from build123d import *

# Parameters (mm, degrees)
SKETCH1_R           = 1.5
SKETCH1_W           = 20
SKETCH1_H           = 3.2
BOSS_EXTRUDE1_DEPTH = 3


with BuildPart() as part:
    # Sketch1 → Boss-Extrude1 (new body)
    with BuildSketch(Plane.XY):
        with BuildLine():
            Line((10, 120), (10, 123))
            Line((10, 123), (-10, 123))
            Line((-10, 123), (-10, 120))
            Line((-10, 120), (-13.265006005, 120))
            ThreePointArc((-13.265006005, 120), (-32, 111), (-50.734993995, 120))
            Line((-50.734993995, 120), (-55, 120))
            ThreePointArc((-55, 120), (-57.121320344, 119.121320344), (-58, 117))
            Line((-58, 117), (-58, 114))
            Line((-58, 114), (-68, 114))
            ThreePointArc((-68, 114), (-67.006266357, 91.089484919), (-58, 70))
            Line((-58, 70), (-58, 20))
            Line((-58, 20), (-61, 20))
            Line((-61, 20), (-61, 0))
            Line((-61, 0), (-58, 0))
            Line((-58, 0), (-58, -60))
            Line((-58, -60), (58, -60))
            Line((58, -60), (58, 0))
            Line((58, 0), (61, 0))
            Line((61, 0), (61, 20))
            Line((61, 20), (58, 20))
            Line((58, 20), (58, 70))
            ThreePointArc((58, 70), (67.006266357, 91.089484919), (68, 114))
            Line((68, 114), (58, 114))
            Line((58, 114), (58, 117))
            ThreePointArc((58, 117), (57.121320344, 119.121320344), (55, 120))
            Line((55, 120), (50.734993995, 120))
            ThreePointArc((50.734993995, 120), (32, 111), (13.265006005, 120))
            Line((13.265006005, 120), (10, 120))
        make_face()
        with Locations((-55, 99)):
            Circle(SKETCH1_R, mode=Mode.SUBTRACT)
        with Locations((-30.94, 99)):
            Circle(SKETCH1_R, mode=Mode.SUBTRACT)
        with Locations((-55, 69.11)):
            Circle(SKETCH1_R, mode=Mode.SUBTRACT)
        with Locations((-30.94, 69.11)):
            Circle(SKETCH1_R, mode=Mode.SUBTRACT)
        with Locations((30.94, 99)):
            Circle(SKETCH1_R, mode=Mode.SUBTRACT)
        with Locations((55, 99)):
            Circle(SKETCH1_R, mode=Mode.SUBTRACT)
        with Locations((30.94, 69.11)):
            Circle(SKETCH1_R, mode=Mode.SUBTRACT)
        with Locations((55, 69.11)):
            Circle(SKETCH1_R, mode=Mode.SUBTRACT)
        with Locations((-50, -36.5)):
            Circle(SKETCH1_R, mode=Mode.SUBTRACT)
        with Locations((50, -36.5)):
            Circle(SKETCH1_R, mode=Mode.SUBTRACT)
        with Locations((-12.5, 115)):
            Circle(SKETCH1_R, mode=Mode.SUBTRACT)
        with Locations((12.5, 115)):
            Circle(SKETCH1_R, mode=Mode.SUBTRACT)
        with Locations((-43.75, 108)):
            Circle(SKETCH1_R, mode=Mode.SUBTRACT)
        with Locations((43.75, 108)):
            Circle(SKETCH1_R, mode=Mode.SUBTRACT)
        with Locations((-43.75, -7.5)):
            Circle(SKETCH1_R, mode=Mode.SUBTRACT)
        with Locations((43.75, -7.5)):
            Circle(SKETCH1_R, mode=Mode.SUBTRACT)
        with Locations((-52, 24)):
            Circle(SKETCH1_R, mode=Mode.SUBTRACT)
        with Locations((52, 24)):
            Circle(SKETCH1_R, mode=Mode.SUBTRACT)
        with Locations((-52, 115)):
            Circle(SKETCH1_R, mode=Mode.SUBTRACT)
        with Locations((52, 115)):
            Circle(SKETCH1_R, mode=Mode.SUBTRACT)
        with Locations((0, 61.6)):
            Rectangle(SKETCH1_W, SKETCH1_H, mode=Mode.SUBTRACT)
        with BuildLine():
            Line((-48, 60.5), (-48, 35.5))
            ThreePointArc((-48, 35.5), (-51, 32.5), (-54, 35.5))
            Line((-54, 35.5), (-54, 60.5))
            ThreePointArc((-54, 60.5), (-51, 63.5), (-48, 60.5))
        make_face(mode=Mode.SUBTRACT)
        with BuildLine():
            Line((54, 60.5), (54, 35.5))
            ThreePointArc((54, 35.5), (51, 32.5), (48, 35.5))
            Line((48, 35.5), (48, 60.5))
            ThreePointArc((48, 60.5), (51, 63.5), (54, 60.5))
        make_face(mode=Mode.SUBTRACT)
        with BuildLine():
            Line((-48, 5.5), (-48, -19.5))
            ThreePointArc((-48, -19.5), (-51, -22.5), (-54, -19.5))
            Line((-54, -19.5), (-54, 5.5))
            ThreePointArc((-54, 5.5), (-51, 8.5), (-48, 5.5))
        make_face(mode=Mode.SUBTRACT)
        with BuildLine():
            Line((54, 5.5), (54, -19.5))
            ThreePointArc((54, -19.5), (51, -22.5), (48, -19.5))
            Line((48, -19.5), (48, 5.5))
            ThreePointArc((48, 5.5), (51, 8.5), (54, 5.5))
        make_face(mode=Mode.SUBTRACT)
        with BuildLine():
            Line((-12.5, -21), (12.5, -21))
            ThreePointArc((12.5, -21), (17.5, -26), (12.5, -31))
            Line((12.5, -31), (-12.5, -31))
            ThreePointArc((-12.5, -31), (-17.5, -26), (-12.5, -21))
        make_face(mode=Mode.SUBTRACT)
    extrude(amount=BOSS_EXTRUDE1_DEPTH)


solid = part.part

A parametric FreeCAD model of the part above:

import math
import FreeCAD as App
import Part
import Sketcher
from FreeCAD import Vector
Q = App.Units.Quantity


def add_polygon(sketch, points):
    """Adds a closed chain of lines whose ends are joined by coincident constraints."""
    first, n = sketch.GeometryCount, len(points)
    for a, b in zip(points, points[1:] + points[:1]):
        sketch.addGeometry(Part.LineSegment(App.Vector(*a, 0), App.Vector(*b, 0)), False)
    for i in range(n):
        sketch.addConstraint(Sketcher.Constraint("Coincident", first + i, 2, first + (i + 1) % n, 1))

doc = App.newDocument("Part")
params = doc.addObject("Spreadsheet::Sheet", "Params")
for row, (alias, value) in enumerate([
    ("sketch1_diameter", "3 mm"),
    ("sketch1_radius", "24 mm"),
    ("sketch1_radius2", "3 mm"),
    ("sketch1_radius3", "64 mm"),
    ("sketch1_radius4", "5 mm"),
    ("pad1_length", "3 mm"),
], start=1):
    params.set(f"A{row}", alias)
    params.set(f"B{row}", "=" + value)
    params.setAlias(f"B{row}", alias)

body = doc.addObject("PartDesign::Body", "Body")

# Sketch on XY plane
sketch1 = doc.addObject("Sketcher::SketchObject", "Sketch")
body.addObject(sketch1)
sketch1.AttachmentSupport = (doc.XY_Plane, [""])
sketch1.MapMode = "FlatFace"
sketch1.addGeometry(Part.LineSegment(Vector(10, 120, 0), Vector(10, 123, 0)), False)  # 0
sketch1.addGeometry(Part.LineSegment(Vector(10, 123, 0), Vector(-10, 123, 0)), False)  # 1
sketch1.addGeometry(Part.LineSegment(Vector(-10, 123, 0), Vector(-10, 120, 0)), False)  # 2
sketch1.addGeometry(Part.LineSegment(Vector(-10, 120, 0), Vector(-13.3, 120, 0)), False)  # 3
sketch1.addGeometry(Part.ArcOfCircle(Part.Circle(Vector(-32, 135, 0), Vector(0, 0, 1), 24), math.radians(-141), math.radians(-39)), False)  # 4
sketch1.addGeometry(Part.LineSegment(Vector(-50.7, 120, 0), Vector(-55, 120, 0)), False)  # 5
sketch1.addGeometry(Part.ArcOfCircle(Part.Circle(Vector(-55, 117, 0), Vector(0, 0, 1), 3), math.radians(90), math.radians(180)), False)  # 6
sketch1.addGeometry(Part.LineSegment(Vector(-58, 117, 0), Vector(-58, 114, 0)), False)  # 7
sketch1.addGeometry(Part.LineSegment(Vector(-58, 114, 0), Vector(-68, 114, 0)), False)  # 8
sketch1.addGeometry(Part.ArcOfCircle(Part.Circle(Vector(-4.6, 105.3, 0), Vector(0, 0, 1), 64), math.radians(172), math.radians(213)), False)  # 9
sketch1.addGeometry(Part.LineSegment(Vector(-58, 70, 0), Vector(-58, 20, 0)), False)  # 10
sketch1.addGeometry(Part.LineSegment(Vector(-58, 20, 0), Vector(-61, 20, 0)), False)  # 11
sketch1.addGeometry(Part.LineSegment(Vector(-61, 20, 0), Vector(-61, 0, 0)), False)  # 12
sketch1.addGeometry(Part.LineSegment(Vector(-61, 0, 0), Vector(-58, 0, 0)), False)  # 13
sketch1.addGeometry(Part.LineSegment(Vector(-58, 0, 0), Vector(-58, -60, 0)), False)  # 14
sketch1.addGeometry(Part.LineSegment(Vector(-58, -60, 0), Vector(58, -60, 0)), False)  # 15
sketch1.addGeometry(Part.LineSegment(Vector(58, -60, 0), Vector(58, 0, 0)), False)  # 16
sketch1.addGeometry(Part.LineSegment(Vector(58, 0, 0), Vector(61, 0, 0)), False)  # 17
sketch1.addGeometry(Part.LineSegment(Vector(61, 0, 0), Vector(61, 20, 0)), False)  # 18
sketch1.addGeometry(Part.LineSegment(Vector(61, 20, 0), Vector(58, 20, 0)), False)  # 19
sketch1.addGeometry(Part.LineSegment(Vector(58, 20, 0), Vector(58, 70, 0)), False)  # 20
sketch1.addGeometry(Part.ArcOfCircle(Part.Circle(Vector(4.6, 105.3, 0), Vector(0, 0, 1), 64), math.radians(-33), math.radians(8)), False)  # 21
sketch1.addGeometry(Part.LineSegment(Vector(68, 114, 0), Vector(58, 114, 0)), False)  # 22
sketch1.addGeometry(Part.LineSegment(Vector(58, 114, 0), Vector(58, 117, 0)), False)  # 23
sketch1.addGeometry(Part.ArcOfCircle(Part.Circle(Vector(55, 117, 0), Vector(0, 0, 1), 3), math.radians(0), math.radians(90)), False)  # 24
sketch1.addGeometry(Part.LineSegment(Vector(55, 120, 0), Vector(50.7, 120, 0)), False)  # 25
sketch1.addGeometry(Part.ArcOfCircle(Part.Circle(Vector(32, 135, 0), Vector(0, 0, 1), 24), math.radians(-141), math.radians(-39)), False)  # 26
sketch1.addGeometry(Part.LineSegment(Vector(13.3, 120, 0), Vector(10, 120, 0)), False)  # 27
sketch1.addGeometry(Part.Circle(Vector(-50, -36.5, 0), Vector(0, 0, 1), 1.5), False)  # 28
sketch1.addGeometry(Part.ArcOfCircle(Part.Circle(Vector(-51, 5.5, 0), Vector(0, 0, 1), 3), math.radians(0), math.radians(180)), False)  # 29
sketch1.addGeometry(Part.LineSegment(Vector(-48, 5.5, 0), Vector(-48, -19.5, 0)), False)  # 30
sketch1.addGeometry(Part.ArcOfCircle(Part.Circle(Vector(-51, -19.5, 0), Vector(0, 0, 1), 3), math.radians(180), math.radians(360)), False)  # 31
sketch1.addGeometry(Part.LineSegment(Vector(-54, -19.5, 0), Vector(-54, 5.5, 0)), False)  # 32
sketch1.addGeometry(Part.Circle(Vector(-43.8, -7.5, 0), Vector(0, 0, 1), 1.5), False)  # 33
sketch1.addGeometry(Part.Circle(Vector(-52, 24, 0), Vector(0, 0, 1), 1.5), False)  # 34
sketch1.addGeometry(Part.ArcOfCircle(Part.Circle(Vector(-12.5, -26, 0), Vector(0, 0, 1), 5), math.radians(90), math.radians(270)), False)  # 35
sketch1.addGeometry(Part.LineSegment(Vector(-12.5, -21, 0), Vector(12.5, -21, 0)), False)  # 36
sketch1.addGeometry(Part.ArcOfCircle(Part.Circle(Vector(12.5, -26, 0), Vector(0, 0, 1), 5), math.radians(-90), math.radians(90)), False)  # 37
sketch1.addGeometry(Part.LineSegment(Vector(12.5, -31, 0), Vector(-12.5, -31, 0)), False)  # 38
sketch1.addGeometry(Part.Circle(Vector(50, -36.5, 0), Vector(0, 0, 1), 1.5), False)  # 39
sketch1.addGeometry(Part.Circle(Vector(43.8, -7.5, 0), Vector(0, 0, 1), 1.5), False)  # 40
sketch1.addGeometry(Part.ArcOfCircle(Part.Circle(Vector(51, 5.5, 0), Vector(0, 0, 1), 3), math.radians(0), math.radians(180)), False)  # 41
sketch1.addGeometry(Part.LineSegment(Vector(54, 5.5, 0), Vector(54, -19.5, 0)), False)  # 42
sketch1.addGeometry(Part.ArcOfCircle(Part.Circle(Vector(51, -19.5, 0), Vector(0, 0, 1), 3), math.radians(180), math.radians(360)), False)  # 43
sketch1.addGeometry(Part.LineSegment(Vector(48, -19.5, 0), Vector(48, 5.5, 0)), False)  # 44
sketch1.addGeometry(Part.Circle(Vector(52, 24, 0), Vector(0, 0, 1), 1.5), False)  # 45
sketch1.addGeometry(Part.ArcOfCircle(Part.Circle(Vector(-51, 60.5, 0), Vector(0, 0, 1), 3), math.radians(0), math.radians(180)), False)  # 46
sketch1.addGeometry(Part.LineSegment(Vector(-48, 60.5, 0), Vector(-48, 35.5, 0)), False)  # 47
sketch1.addGeometry(Part.ArcOfCircle(Part.Circle(Vector(-51, 35.5, 0), Vector(0, 0, 1), 3), math.radians(180), math.radians(360)), False)  # 48
sketch1.addGeometry(Part.LineSegment(Vector(-54, 35.5, 0), Vector(-54, 60.5, 0)), False)  # 49
sketch1.addGeometry(Part.Circle(Vector(-55, 69.1, 0), Vector(0, 0, 1), 1.5), False)  # 50
sketch1.addGeometry(Part.Circle(Vector(-30.9, 69.1, 0), Vector(0, 0, 1), 1.5), False)  # 51
sketch1.addGeometry(Part.Circle(Vector(-55, 99, 0), Vector(0, 0, 1), 1.5), False)  # 52
sketch1.addGeometry(Part.Circle(Vector(-52, 115, 0), Vector(0, 0, 1), 1.5), False)  # 53
sketch1.addGeometry(Part.Circle(Vector(-43.8, 108, 0), Vector(0, 0, 1), 1.5), False)  # 54
sketch1.addGeometry(Part.Circle(Vector(-30.9, 99, 0), Vector(0, 0, 1), 1.5), False)  # 55
sketch1.addGeometry(Part.Circle(Vector(-12.5, 115, 0), Vector(0, 0, 1), 1.5), False)  # 56
add_polygon(sketch1, [(10, 60), (-10, 60), (-10, 63.2), (10, 63.2)])  # lines 57-60
sketch1.addGeometry(Part.ArcOfCircle(Part.Circle(Vector(51, 60.5, 0), Vector(0, 0, 1), 3), math.radians(0), math.radians(180)), False)  # 61
sketch1.addGeometry(Part.LineSegment(Vector(54, 60.5, 0), Vector(54, 35.5, 0)), False)  # 62
sketch1.addGeometry(Part.ArcOfCircle(Part.Circle(Vector(51, 35.5, 0), Vector(0, 0, 1), 3), math.radians(180), math.radians(360)), False)  # 63
sketch1.addGeometry(Part.LineSegment(Vector(48, 35.5, 0), Vector(48, 60.5, 0)), False)  # 64
sketch1.addGeometry(Part.Circle(Vector(30.9, 69.1, 0), Vector(0, 0, 1), 1.5), False)  # 65
sketch1.addGeometry(Part.Circle(Vector(55, 69.1, 0), Vector(0, 0, 1), 1.5), False)  # 66
sketch1.addGeometry(Part.Circle(Vector(12.5, 115, 0), Vector(0, 0, 1), 1.5), False)  # 67
sketch1.addGeometry(Part.Circle(Vector(30.9, 99, 0), Vector(0, 0, 1), 1.5), False)  # 68
sketch1.addGeometry(Part.Circle(Vector(55, 99, 0), Vector(0, 0, 1), 1.5), False)  # 69
sketch1.addGeometry(Part.Circle(Vector(43.8, 108, 0), Vector(0, 0, 1), 1.5), False)  # 70
sketch1.addGeometry(Part.Circle(Vector(52, 115, 0), Vector(0, 0, 1), 1.5), False)  # 71
sketch1.addConstraint([
    Sketcher.Constraint("Coincident", 0, 2, 1, 1),
    Sketcher.Constraint("Coincident", 1, 2, 2, 1),
    Sketcher.Constraint("Coincident", 2, 2, 3, 1),
    Sketcher.Constraint("Coincident", 3, 2, 4, 2),
    Sketcher.Constraint("Coincident", 4, 1, 5, 1),
    Sketcher.Constraint("Tangent", 5, 2, 6, 1),
    Sketcher.Constraint("Tangent", 6, 2, 7, 1),
    Sketcher.Constraint("Coincident", 7, 2, 8, 1),
    Sketcher.Constraint("Coincident", 8, 2, 9, 1),
    Sketcher.Constraint("Coincident", 9, 2, 10, 1),
    Sketcher.Constraint("Coincident", 10, 2, 11, 1),
    Sketcher.Constraint("Coincident", 11, 2, 12, 1),
    Sketcher.Constraint("Coincident", 12, 2, 13, 1),
    Sketcher.Constraint("Coincident", 13, 2, 14, 1),
    Sketcher.Constraint("Coincident", 14, 2, 15, 1),
    Sketcher.Constraint("Coincident", 15, 2, 16, 1),
    Sketcher.Constraint("Coincident", 16, 2, 17, 1),
    Sketcher.Constraint("Coincident", 17, 2, 18, 1),
    Sketcher.Constraint("Coincident", 18, 2, 19, 1),
    Sketcher.Constraint("Coincident", 19, 2, 20, 1),
    Sketcher.Constraint("Coincident", 20, 2, 21, 1),
    Sketcher.Constraint("Coincident", 21, 2, 22, 1),
    Sketcher.Constraint("Coincident", 22, 2, 23, 1),
    Sketcher.Constraint("Tangent", 23, 2, 24, 1),
    Sketcher.Constraint("Tangent", 24, 2, 25, 1),
    Sketcher.Constraint("Coincident", 25, 2, 26, 2),
    Sketcher.Constraint("Coincident", 26, 1, 27, 1),
    Sketcher.Constraint("Coincident", 27, 2, 0, 1),
    Sketcher.Constraint("Tangent", 29, 1, 30, 1),
    Sketcher.Constraint("Tangent", 30, 2, 31, 2),
    Sketcher.Constraint("Tangent", 31, 1, 32, 1),
    Sketcher.Constraint("Tangent", 32, 2, 29, 2),
    Sketcher.Constraint("Tangent", 35, 1, 36, 1),
    Sketcher.Constraint("Tangent", 36, 2, 37, 2),
    Sketcher.Constraint("Tangent", 37, 1, 38, 1),
    Sketcher.Constraint("Tangent", 38, 2, 35, 2),
    Sketcher.Constraint("Tangent", 41, 1, 42, 1),
    Sketcher.Constraint("Tangent", 42, 2, 43, 2),
    Sketcher.Constraint("Tangent", 43, 1, 44, 1),
    Sketcher.Constraint("Tangent", 44, 2, 41, 2),
    Sketcher.Constraint("Tangent", 46, 1, 47, 1),
    Sketcher.Constraint("Tangent", 47, 2, 48, 2),
    Sketcher.Constraint("Tangent", 48, 1, 49, 1),
    Sketcher.Constraint("Tangent", 49, 2, 46, 2),
    Sketcher.Constraint("Tangent", 61, 1, 62, 1),
    Sketcher.Constraint("Tangent", 62, 2, 63, 2),
    Sketcher.Constraint("Tangent", 63, 1, 64, 1),
    Sketcher.Constraint("Tangent", 64, 2, 61, 2),
    Sketcher.Constraint("Vertical", 0),
    Sketcher.Constraint("Horizontal", 1),
    Sketcher.Constraint("Vertical", 2),
    Sketcher.Constraint("Horizontal", 3),
    Sketcher.Constraint("Horizontal", 5),
    Sketcher.Constraint("Vertical", 7),
    Sketcher.Constraint("Horizontal", 8),
    Sketcher.Constraint("Vertical", 10),
    Sketcher.Constraint("Horizontal", 11),
    Sketcher.Constraint("Vertical", 12),
    Sketcher.Constraint("Horizontal", 13),
    Sketcher.Constraint("Vertical", 14),
    Sketcher.Constraint("Horizontal", 15),
    Sketcher.Constraint("Vertical", 16),
    Sketcher.Constraint("Horizontal", 17),
    Sketcher.Constraint("Vertical", 18),
    Sketcher.Constraint("Horizontal", 19),
    Sketcher.Constraint("Vertical", 20),
    Sketcher.Constraint("Horizontal", 22),
    Sketcher.Constraint("Vertical", 23),
    Sketcher.Constraint("Horizontal", 25),
    Sketcher.Constraint("Horizontal", 27),
    Sketcher.Constraint("Vertical", 30),
    Sketcher.Constraint("Vertical", 32),
    Sketcher.Constraint("Horizontal", 36),
    Sketcher.Constraint("Horizontal", 38),
    Sketcher.Constraint("Vertical", 42),
    Sketcher.Constraint("Vertical", 44),
    Sketcher.Constraint("Vertical", 47),
    Sketcher.Constraint("Vertical", 49),
    Sketcher.Constraint("Horizontal", 57),
    Sketcher.Constraint("Vertical", 58),
    Sketcher.Constraint("Horizontal", 59),
    Sketcher.Constraint("Vertical", 60),
    Sketcher.Constraint("Vertical", 62),
    Sketcher.Constraint("Vertical", 64),
    Sketcher.Constraint("Equal", 9, 21),
    Sketcher.Constraint("Equal", 6, 24),
    Sketcher.Constraint("Equal", 4, 26),
    Sketcher.Constraint("Equal", 24, 29),
    Sketcher.Constraint("Equal", 28, 33),
    Sketcher.Constraint("Equal", 33, 34),
    Sketcher.Constraint("Equal", 34, 39),
    Sketcher.Constraint("Equal", 39, 40),
    Sketcher.Constraint("Equal", 31, 41),
    Sketcher.Constraint("Equal", 40, 45),
    Sketcher.Constraint("Equal", 43, 46),
    Sketcher.Constraint("Equal", 45, 50),
    Sketcher.Constraint("Equal", 50, 51),
    Sketcher.Constraint("Equal", 51, 52),
    Sketcher.Constraint("Equal", 52, 53),
    Sketcher.Constraint("Equal", 53, 54),
    Sketcher.Constraint("Equal", 54, 55),
    Sketcher.Constraint("Equal", 55, 56),
    Sketcher.Constraint("Equal", 48, 61),
    Sketcher.Constraint("Equal", 56, 65),
    Sketcher.Constraint("Equal", 65, 66),
    Sketcher.Constraint("Equal", 66, 67),
    Sketcher.Constraint("Equal", 67, 68),
    Sketcher.Constraint("Equal", 68, 69),
    Sketcher.Constraint("Equal", 69, 70),
    Sketcher.Constraint("Equal", 70, 71),
    Sketcher.Constraint("Symmetric", 13, 2, 16, 2, -1, 1),
    Sketcher.Constraint("Symmetric", 9, 3, 21, 3, -2),
    Sketcher.Constraint("Symmetric", 6, 3, 24, 3, -2),
    Sketcher.Constraint("Symmetric", 4, 3, 26, 3, -2),
    Sketcher.Constraint("Symmetric", 28, 3, 39, 3, -2),
    Sketcher.Constraint("Symmetric", 33, 3, 40, 3, -2),
    Sketcher.Constraint("Symmetric", 29, 3, 41, 3, -2),
    Sketcher.Constraint("Symmetric", 34, 3, 45, 3, -2),
    Sketcher.Constraint("Symmetric", 46, 3, 61, 3, -2),
    Sketcher.Constraint("Symmetric", 51, 3, 65, 3, -2),
    Sketcher.Constraint("Symmetric", 50, 3, 66, 3, -2),
    Sketcher.Constraint("Symmetric", 56, 3, 67, 3, -2),
    Sketcher.Constraint("Symmetric", 55, 3, 68, 3, -2),
    Sketcher.Constraint("Symmetric", 52, 3, 69, 3, -2),
    Sketcher.Constraint("Symmetric", 54, 3, 70, 3, -2),
    Sketcher.Constraint("Symmetric", 53, 3, 71, 3, -2),
    Sketcher.Constraint("Symmetric", 12, 2, 17, 2, -2),
    Sketcher.Constraint("Symmetric", 10, 2, 19, 2, -2),
    Sketcher.Constraint("Symmetric", 2, 2, 27, 2, -2),
    Sketcher.Constraint("Horizontal", 31, 3, 43, 3),
    Sketcher.Constraint("Horizontal", 50, 3, 51, 3),
    Sketcher.Constraint("Horizontal", 52, 3, 55, 3),
    Sketcher.Constraint("Horizontal", 53, 3, 56, 3),
    Sketcher.Constraint("Horizontal", 48, 3, 63, 3),
    Sketcher.Constraint("Horizontal", 3, 2, 4, 1),
    Sketcher.Constraint("Horizontal", 8, 2, 21, 2),
    Sketcher.Constraint("Vertical", 31, 3, 46, 3),
    Sketcher.Constraint("Vertical", 6, 3, 50, 3),
    Sketcher.Constraint("Vertical", 50, 3, 52, 3),
    Sketcher.Constraint("Vertical", 34, 3, 53, 3),
    Sketcher.Constraint("Vertical", 33, 3, 54, 3),
    Sketcher.Constraint("Vertical", 51, 3, 55, 3),
    Sketcher.Constraint("Vertical", 35, 3, 56, 3),
    Sketcher.Constraint("Vertical", 37, 3, 67, 3),
    Sketcher.Constraint("Vertical", 7, 2, 9, 2),
    Sketcher.Constraint("Vertical", 10, 2, 13, 2),
    Sketcher.Constraint("Vertical", 2, 2, 57, 2),
    Sketcher.Constraint("Vertical", 27, 2, 59, 2),
    Sketcher.Constraint("Equal", 19, 0),
    Sketcher.Constraint("Equal", 2, 7),
    Sketcher.Constraint("Equal", 59, 12),
    Sketcher.Constraint("Equal", 38, 30),
    Sketcher.Constraint("Equal", 44, 47),
    Sketcher.Constraint("Diameter", 28, Q("3 mm")),
    Sketcher.Constraint("Radius", 4, Q("24 mm")),
    Sketcher.Constraint("Radius", 6, Q("3 mm")),
    Sketcher.Constraint("Radius", 9, Q("64 mm")),
    Sketcher.Constraint("Radius", 35, Q("5 mm")),
    Sketcher.Constraint("DistanceX", 1, 2, 1, 1, Q("20 mm")),
    Sketcher.Constraint("DistanceX", 8, 2, 8, 1, Q("10 mm")),
    Sketcher.Constraint("DistanceX", 11, 2, 11, 1, Q("3 mm")),
    Sketcher.Constraint("DistanceX", 15, 1, 15, 2, Q("116 mm")),
    Sketcher.Constraint("DistanceX", 36, 1, 36, 2, Q("25 mm")),
    Sketcher.Constraint("DistanceY", 10, 2, 10, 1, Q("50 mm")),
    Sketcher.Constraint("DistanceY", 14, 2, 14, 1, Q("60 mm")),
    Sketcher.Constraint("DistanceY", 58, 1, 58, 2, Q("3.2 mm")),
    Sketcher.Constraint("DistanceX", 4, 3, -1, 1, Q("32 mm")),
    Sketcher.Constraint("DistanceY", -1, 1, 4, 3, Q("135 mm")),
    Sketcher.Constraint("DistanceY", -1, 1, 6, 3, Q("117 mm")),
    Sketcher.Constraint("DistanceX", 28, 3, -1, 1, Q("50 mm")),
    Sketcher.Constraint("DistanceX", 29, 3, -1, 1, Q("51 mm")),
    Sketcher.Constraint("DistanceX", 34, 3, -1, 1, Q("52 mm")),
    Sketcher.Constraint("DistanceY", -1, 1, 34, 3, Q("24 mm")),
    Sketcher.Constraint("DistanceY", 35, 3, -1, 1, Q("26 mm")),
    Sketcher.Constraint("DistanceY", -1, 1, 52, 3, Q("99 mm")),
    Sketcher.Constraint("DistanceY", -1, 1, 53, 3, Q("115 mm")),
    Sketcher.Constraint("DistanceY", -1, 1, 54, 3, Q("108 mm")),
    Sketcher.Constraint("DistanceY", -1, 1, 57, 2, Q("60 mm")),
    Sketcher.Constraint("DistanceY", 28, 3, -1, 1, Q("36.5 mm")),
    Sketcher.Constraint("DistanceY", -1, 1, 29, 3, Q("5.5 mm")),
    Sketcher.Constraint("DistanceY", 33, 3, -1, 1, Q("7.5 mm")),
    Sketcher.Constraint("DistanceY", -1, 1, 46, 3, Q("60.5 mm")),
    Sketcher.Constraint("DistanceX", 33, 3, -1, 1, Q("43.75 mm")),
    Sketcher.Constraint("DistanceY", -1, 1, 50, 3, Q("69.11 mm")),
    Sketcher.Constraint("DistanceX", 51, 3, -1, 1, Q("30.94 mm")),
])
sketch1.setExpression("Constraints[157]", "Params.sketch1_diameter")
sketch1.setExpression("Constraints[158]", "Params.sketch1_radius")
sketch1.setExpression("Constraints[159]", "Params.sketch1_radius2")
sketch1.setExpression("Constraints[160]", "Params.sketch1_radius3")
sketch1.setExpression("Constraints[161]", "Params.sketch1_radius4")
pad1 = doc.addObject("PartDesign::Pad", "Pad")
body.addObject(pad1)
pad1.Profile = sketch1
pad1.setExpression("Length", "Params.pad1_length")

doc.recompute()
